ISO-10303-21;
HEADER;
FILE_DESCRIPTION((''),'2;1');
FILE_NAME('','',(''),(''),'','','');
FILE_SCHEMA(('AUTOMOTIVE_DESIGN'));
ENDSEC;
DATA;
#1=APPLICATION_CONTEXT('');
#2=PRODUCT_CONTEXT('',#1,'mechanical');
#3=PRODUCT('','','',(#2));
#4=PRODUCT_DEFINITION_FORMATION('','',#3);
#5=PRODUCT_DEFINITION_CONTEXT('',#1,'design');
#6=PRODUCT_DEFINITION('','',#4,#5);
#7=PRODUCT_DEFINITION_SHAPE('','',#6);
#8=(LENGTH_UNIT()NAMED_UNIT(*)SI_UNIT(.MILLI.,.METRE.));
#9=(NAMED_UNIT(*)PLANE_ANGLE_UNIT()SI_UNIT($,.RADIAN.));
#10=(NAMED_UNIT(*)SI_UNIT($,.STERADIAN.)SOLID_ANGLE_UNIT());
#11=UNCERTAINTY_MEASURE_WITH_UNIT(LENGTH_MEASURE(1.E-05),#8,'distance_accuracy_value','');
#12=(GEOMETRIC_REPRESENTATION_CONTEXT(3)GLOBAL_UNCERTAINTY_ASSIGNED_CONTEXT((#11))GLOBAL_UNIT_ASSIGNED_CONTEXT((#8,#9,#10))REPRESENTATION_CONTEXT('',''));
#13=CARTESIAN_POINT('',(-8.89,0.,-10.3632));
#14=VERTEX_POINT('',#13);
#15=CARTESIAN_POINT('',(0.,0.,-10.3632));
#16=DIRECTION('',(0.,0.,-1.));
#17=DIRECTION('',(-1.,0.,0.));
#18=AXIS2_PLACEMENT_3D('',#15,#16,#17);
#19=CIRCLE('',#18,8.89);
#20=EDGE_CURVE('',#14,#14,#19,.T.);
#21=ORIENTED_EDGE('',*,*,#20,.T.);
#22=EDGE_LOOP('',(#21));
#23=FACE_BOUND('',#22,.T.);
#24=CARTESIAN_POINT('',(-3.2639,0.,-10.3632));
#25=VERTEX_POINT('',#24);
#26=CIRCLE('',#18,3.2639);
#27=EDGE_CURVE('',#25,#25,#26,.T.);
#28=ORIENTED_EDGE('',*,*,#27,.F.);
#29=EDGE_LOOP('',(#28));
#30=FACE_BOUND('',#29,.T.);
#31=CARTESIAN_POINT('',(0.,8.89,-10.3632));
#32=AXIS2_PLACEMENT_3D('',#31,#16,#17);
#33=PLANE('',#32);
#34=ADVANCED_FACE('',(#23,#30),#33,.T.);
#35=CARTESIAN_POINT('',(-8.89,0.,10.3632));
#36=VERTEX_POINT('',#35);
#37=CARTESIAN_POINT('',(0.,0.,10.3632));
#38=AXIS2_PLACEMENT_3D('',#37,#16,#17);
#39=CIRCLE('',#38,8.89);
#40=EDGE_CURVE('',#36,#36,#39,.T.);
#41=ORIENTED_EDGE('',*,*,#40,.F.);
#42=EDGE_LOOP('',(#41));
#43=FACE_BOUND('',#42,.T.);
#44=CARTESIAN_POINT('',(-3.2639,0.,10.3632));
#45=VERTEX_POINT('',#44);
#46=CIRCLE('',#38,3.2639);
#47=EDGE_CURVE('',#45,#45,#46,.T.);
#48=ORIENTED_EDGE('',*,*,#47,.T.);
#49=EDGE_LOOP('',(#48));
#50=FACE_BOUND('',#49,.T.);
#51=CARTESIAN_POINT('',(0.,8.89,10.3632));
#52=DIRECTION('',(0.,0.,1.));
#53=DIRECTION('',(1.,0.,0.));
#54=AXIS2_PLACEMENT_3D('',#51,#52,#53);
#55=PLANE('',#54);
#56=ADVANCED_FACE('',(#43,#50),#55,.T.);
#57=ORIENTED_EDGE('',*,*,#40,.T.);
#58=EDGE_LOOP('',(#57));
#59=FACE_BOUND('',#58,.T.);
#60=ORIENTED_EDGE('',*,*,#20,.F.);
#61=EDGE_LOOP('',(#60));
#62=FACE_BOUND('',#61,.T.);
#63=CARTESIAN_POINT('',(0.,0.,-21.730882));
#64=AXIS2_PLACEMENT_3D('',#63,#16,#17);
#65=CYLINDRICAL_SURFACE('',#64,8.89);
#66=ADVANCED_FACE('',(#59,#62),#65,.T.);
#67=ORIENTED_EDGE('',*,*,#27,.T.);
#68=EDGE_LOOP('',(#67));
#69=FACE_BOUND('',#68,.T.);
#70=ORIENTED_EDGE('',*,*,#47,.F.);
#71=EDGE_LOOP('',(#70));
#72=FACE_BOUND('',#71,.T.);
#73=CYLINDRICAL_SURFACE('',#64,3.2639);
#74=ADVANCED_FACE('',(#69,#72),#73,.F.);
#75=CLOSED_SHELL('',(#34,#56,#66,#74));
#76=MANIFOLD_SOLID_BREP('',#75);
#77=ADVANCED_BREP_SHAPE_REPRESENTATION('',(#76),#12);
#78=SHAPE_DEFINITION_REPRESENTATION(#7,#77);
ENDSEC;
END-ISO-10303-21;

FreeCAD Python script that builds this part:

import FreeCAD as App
import Part
import Sketcher
from FreeCAD import Vector
Q = App.Units.Quantity


def add_polygon(sketch, points):
    """Adds a closed chain of lines whose ends are joined by coincident constraints."""
    first, n = sketch.GeometryCount, len(points)
    for a, b in zip(points, points[1:] + points[:1]):
        sketch.addGeometry(Part.LineSegment(App.Vector(*a, 0), App.Vector(*b, 0)), False)
    for i in range(n):
        sketch.addConstraint(Sketcher.Constraint("Coincident", first + i, 2, first + (i + 1) % n, 1))

doc = App.newDocument("Part")
params = doc.addObject("Spreadsheet::Sheet", "Params")
for row, (alias, value) in enumerate([
    ("sketch1_height", "0.816 in"),
    ("revolution_angle", "360 deg"),
], start=1):
    params.set(f"A{row}", alias)
    params.set(f"B{row}", "=" + value)
    params.setAlias(f"B{row}", alias)

body = doc.addObject("PartDesign::Body", "Body")

# Sketch on YZ plane
sketch1 = body.newObject("Sketcher::SketchObject", "Sketch")
sketch1.AttachmentSupport = (doc.getObject("YZ_Plane"), [""])
sketch1.MapMode = "FlatFace"
add_polygon(sketch1, [(9, 10), (3, 10), (3, -10), (9, -10)])  # lines 0-3
sketch1.addConstraint([
    Sketcher.Constraint("Horizontal", 0),
    Sketcher.Constraint("Vertical", 1),
    Sketcher.Constraint("Horizontal", 2),
    Sketcher.Constraint("Vertical", 3),
    Sketcher.Constraint("DistanceY", 1, 2, 1, 1, Q("0.816 in")),
    Sketcher.Constraint("DistanceX", -1, 1, 2, 2, Q("0.35 in")),
    Sketcher.Constraint("DistanceX", 0, 2, 0, 1, Q("0.2215 in")),
    Sketcher.Constraint("DistanceY", -1, 1, 0, 2, Q("0.408 in")),
])
sketch1.setExpression("Constraints[8]", "Params.sketch1_height")
revolution = body.newObject("PartDesign::Revolution", "Revolution")
revolution.Profile = sketch1
revolution.ReferenceAxis = (sketch1, ["V_Axis"])
revolution.setExpression("Angle", "Params.revolution_angle")

doc.recompute()
